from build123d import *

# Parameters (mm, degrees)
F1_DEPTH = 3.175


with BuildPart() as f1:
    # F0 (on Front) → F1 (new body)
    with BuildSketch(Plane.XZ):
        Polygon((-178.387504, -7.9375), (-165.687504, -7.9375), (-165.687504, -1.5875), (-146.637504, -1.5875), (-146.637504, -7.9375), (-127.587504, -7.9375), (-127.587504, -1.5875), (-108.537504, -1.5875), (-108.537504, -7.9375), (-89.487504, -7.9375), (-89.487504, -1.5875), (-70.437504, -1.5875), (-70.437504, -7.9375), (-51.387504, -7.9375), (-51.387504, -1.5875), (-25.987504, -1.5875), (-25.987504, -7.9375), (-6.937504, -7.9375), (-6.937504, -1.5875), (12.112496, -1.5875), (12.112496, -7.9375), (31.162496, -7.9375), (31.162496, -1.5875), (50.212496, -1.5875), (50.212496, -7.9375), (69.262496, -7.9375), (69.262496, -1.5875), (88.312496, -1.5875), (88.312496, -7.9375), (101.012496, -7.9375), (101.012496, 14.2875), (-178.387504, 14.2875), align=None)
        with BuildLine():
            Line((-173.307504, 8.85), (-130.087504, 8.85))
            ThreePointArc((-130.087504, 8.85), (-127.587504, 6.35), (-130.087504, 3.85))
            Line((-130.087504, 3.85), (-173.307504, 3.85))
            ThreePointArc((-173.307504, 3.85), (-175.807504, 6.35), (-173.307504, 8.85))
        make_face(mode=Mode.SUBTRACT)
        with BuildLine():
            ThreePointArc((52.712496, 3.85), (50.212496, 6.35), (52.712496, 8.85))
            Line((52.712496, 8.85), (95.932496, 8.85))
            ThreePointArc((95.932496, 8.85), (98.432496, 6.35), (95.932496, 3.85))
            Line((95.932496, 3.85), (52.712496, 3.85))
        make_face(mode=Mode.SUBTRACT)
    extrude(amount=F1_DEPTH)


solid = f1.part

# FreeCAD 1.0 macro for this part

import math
import FreeCAD as App
import Part
import Sketcher
from FreeCAD import Vector
Q = App.Units.Quantity


def add_polygon(sketch, points):
    """Adds a closed chain of lines whose ends are joined by coincident constraints."""
    first, n = sketch.GeometryCount, len(points)
    for a, b in zip(points, points[1:] + points[:1]):
        sketch.addGeometry(Part.LineSegment(App.Vector(*a, 0), App.Vector(*b, 0)), False)
    for i in range(n):
        sketch.addConstraint(Sketcher.Constraint("Coincident", first + i, 2, first + (i + 1) % n, 1))

doc = App.newDocument("Part")
body = doc.addObject("PartDesign::Body", "Body")

# Sketch on XZ plane
sketch1 = body.newObject("Sketcher::SketchObject", "Sketch")
sketch1.AttachmentSupport = (doc.getObject("XZ_Plane"), [""])
sketch1.MapMode = "FlatFace"
add_polygon(sketch1, [(-178.4, -7.9), (-165.7, -7.9), (-165.7, -1.6), (-146.6, -1.6), (-146.6, -7.9), (-127.6, -7.9), (-127.6, -1.6), (-108.5, -1.6), (-108.5, -7.9), (-89.5, -7.9), (-89.5, -1.6), (-70.4, -1.6), (-70.4, -7.9), (-51.4, -7.9), (-51.4, -1.6), (-26, -1.6), (-26, -7.9), (-6.9, -7.9), (-6.9, -1.6), (12.1, -1.6), (12.1, -7.9), (31.2, -7.9), (31.2, -1.6), (50.2, -1.6), (50.2, -7.9), (69.3, -7.9), (69.3, -1.6), (88.3, -1.6), (88.3, -7.9), (101, -7.9), (101, 14.3), (-178.4, 14.3)])  # lines 0-31
sketch1.addGeometry(Part.ArcOfCircle(Part.Circle(Vector(-173.3, 6.3, 0), Vector(0, 0, 1), 2.5), math.radians(90), math.radians(270)), False)  # 32
sketch1.addGeometry(Part.LineSegment(Vector(-173.3, 8.8, 0), Vector(-130.1, 8.8, 0)), False)  # 33
sketch1.addGeometry(Part.ArcOfCircle(Part.Circle(Vector(-130.1, 6.3, 0), Vector(0, 0, 1), 2.5), math.radians(-90), math.radians(90)), False)  # 34
sketch1.addGeometry(Part.LineSegment(Vector(-130.1, 3.9, 0), Vector(-173.3, 3.9, 0)), False)  # 35
sketch1.addGeometry(Part.LineSegment(Vector(95.9, 3.9, 0), Vector(52.7, 3.9, 0)), False)  # 36
sketch1.addGeometry(Part.ArcOfCircle(Part.Circle(Vector(52.7, 6.3, 0), Vector(0, 0, 1), 2.5), math.radians(90), math.radians(270)), False)  # 37
sketch1.addGeometry(Part.LineSegment(Vector(52.7, 8.8, 0), Vector(95.9, 8.8, 0)), False)  # 38
sketch1.addGeometry(Part.ArcOfCircle(Part.Circle(Vector(95.9, 6.3, 0), Vector(0, 0, 1), 2.5), math.radians(-90), math.radians(90)), False)  # 39
sketch1.addConstraint(Sketcher.Constraint("Tangent", 32, 1, 33, 1))
sketch1.addConstraint(Sketcher.Constraint("Tangent", 33, 2, 34, 2))
sketch1.addConstraint(Sketcher.Constraint("Tangent", 34, 1, 35, 1))
sketch1.addConstraint(Sketcher.Constraint("Tangent", 35, 2, 32, 2))
sketch1.addConstraint(Sketcher.Constraint("Tangent", 36, 2, 37, 2))
sketch1.addConstraint(Sketcher.Constraint("Tangent", 37, 1, 38, 1))
sketch1.addConstraint(Sketcher.Constraint("Tangent", 38, 2, 39, 2))
sketch1.addConstraint(Sketcher.Constraint("Tangent", 39, 1, 36, 1))
sketch1.addConstraint(Sketcher.Constraint("Horizontal", 0))
sketch1.addConstraint(Sketcher.Constraint("Vertical", 1))
sketch1.addConstraint(Sketcher.Constraint("Horizontal", 2))
sketch1.addConstraint(Sketcher.Constraint("Vertical", 3))
sketch1.addConstraint(Sketcher.Constraint("Horizontal", 4))
sketch1.addConstraint(Sketcher.Constraint("Vertical", 5))
sketch1.addConstraint(Sketcher.Constraint("Horizontal", 6))
sketch1.addConstraint(Sketcher.Constraint("Vertical", 7))
sketch1.addConstraint(Sketcher.Constraint("Horizontal", 8))
sketch1.addConstraint(Sketcher.Constraint("Vertical", 9))
sketch1.addConstraint(Sketcher.Constraint("Horizontal", 10))
sketch1.addConstraint(Sketcher.Constraint("Vertical", 11))
sketch1.addConstraint(Sketcher.Constraint("Horizontal", 12))
sketch1.addConstraint(Sketcher.Constraint("Vertical", 13))
sketch1.addConstraint(Sketcher.Constraint("Horizontal", 14))
sketch1.addConstraint(Sketcher.Constraint("Vertical", 15))
sketch1.addConstraint(Sketcher.Constraint("Horizontal", 16))
sketch1.addConstraint(Sketcher.Constraint("Vertical", 17))
sketch1.addConstraint(Sketcher.Constraint("Horizontal", 18))
sketch1.addConstraint(Sketcher.Constraint("Vertical", 19))
sketch1.addConstraint(Sketcher.Constraint("Horizontal", 20))
sketch1.addConstraint(Sketcher.Constraint("Vertical", 21))
sketch1.addConstraint(Sketcher.Constraint("Horizontal", 22))
sketch1.addConstraint(Sketcher.Constraint("Vertical", 23))
sketch1.addConstraint(Sketcher.Constraint("Horizontal", 24))
sketch1.addConstraint(Sketcher.Constraint("Vertical", 25))
sketch1.addConstraint(Sketcher.Constraint("Horizontal", 26))
sketch1.addConstraint(Sketcher.Constraint("Vertical", 27))
sketch1.addConstraint(Sketcher.Constraint("Horizontal", 28))
sketch1.addConstraint(Sketcher.Constraint("Vertical", 29))
sketch1.addConstraint(Sketcher.Constraint("Horizontal", 30))
sketch1.addConstraint(Sketcher.Constraint("Vertical", 31))
sketch1.addConstraint(Sketcher.Constraint("Horizontal", 33))
sketch1.addConstraint(Sketcher.Constraint("Horizontal", 35))
sketch1.addConstraint(Sketcher.Constraint("Horizontal", 36))
sketch1.addConstraint(Sketcher.Constraint("Horizontal", 38))
sketch1.addConstraint(Sketcher.Constraint("Equal", 34, 37))
sketch1.addConstraint(Sketcher.Constraint("Horizontal", 34, 3, 37, 3))
sketch1.addConstraint(Sketcher.Constraint("Horizontal", 0, 2, 3, 2))
sketch1.addConstraint(Sketcher.Constraint("Horizontal", 2, 2, 5, 2))
sketch1.addConstraint(Sketcher.Constraint("Horizontal", 4, 2, 7, 2))
sketch1.addConstraint(Sketcher.Constraint("Horizontal", 6, 2, 9, 2))
sketch1.addConstraint(Sketcher.Constraint("Horizontal", 8, 2, 11, 2))
sketch1.addConstraint(Sketcher.Constraint("Horizontal", 10, 2, 13, 2))
sketch1.addConstraint(Sketcher.Constraint("Horizontal", 12, 2, 15, 2))
sketch1.addConstraint(Sketcher.Constraint("Horizontal", 14, 2, 17, 2))
sketch1.addConstraint(Sketcher.Constraint("Horizontal", 16, 2, 19, 2))
sketch1.addConstraint(Sketcher.Constraint("Horizontal", 18, 2, 21, 2))
sketch1.addConstraint(Sketcher.Constraint("Horizontal", 20, 2, 23, 2))
sketch1.addConstraint(Sketcher.Constraint("Horizontal", 22, 2, 25, 2))
sketch1.addConstraint(Sketcher.Constraint("Horizontal", 24, 2, 27, 2))
sketch1.addConstraint(Sketcher.Constraint("Equal", 2, 4))
sketch1.addConstraint(Sketcher.Constraint("Equal", 4, 6))
sketch1.addConstraint(Sketcher.Constraint("Equal", 6, 8))
sketch1.addConstraint(Sketcher.Constraint("Equal", 8, 10))
sketch1.addConstraint(Sketcher.Constraint("Equal", 10, 12))
sketch1.addConstraint(Sketcher.Constraint("Equal", 12, 16))
sketch1.addConstraint(Sketcher.Constraint("Equal", 16, 18))
sketch1.addConstraint(Sketcher.Constraint("Equal", 18, 20))
sketch1.addConstraint(Sketcher.Constraint("Equal", 20, 22))
sketch1.addConstraint(Sketcher.Constraint("Equal", 22, 24))
sketch1.addConstraint(Sketcher.Constraint("Equal", 24, 26))
sketch1.addConstraint(Sketcher.Constraint("Equal", 0, 28))
sketch1.addConstraint(Sketcher.Constraint("Equal", 35, 36))
sketch1.addConstraint(Sketcher.Constraint("DistanceX", 14, 1, 14, 2, Q("1 in")))
sketch1.addConstraint(Sketcher.Constraint("DistanceX", 30, 2, 30, 1, Q("11 in")))
sketch1.addConstraint(Sketcher.Constraint("DistanceX", 0, 1, 0, 2, Q("0.5 in")))
sketch1.addConstraint(Sketcher.Constraint("DistanceY", 1, 1, 1, 2, Q("0.25 in")))
sketch1.addConstraint(Sketcher.Constraint("DistanceX", 32, 3, 39, 3, Q("10.6 in")))
sketch1.addConstraint(Sketcher.Constraint("DistanceX", 32, 3, 0, 2, Q("0.3 in")))
sketch1.addConstraint(Sketcher.Constraint("DistanceY", 29, 1, 29, 2, Q("0.875 in")))
sketch1.addConstraint(Sketcher.Constraint("DistanceY", -1, 1, 32, 3, Q("0.25 in")))
sketch1.addConstraint(Sketcher.Constraint("Radius", 32, 2.5))
sketch1.addConstraint(Sketcher.Constraint("DistanceY", 0, 2, -1, 1, Q("0.3125 in")))
sketch1.addConstraint(Sketcher.Constraint("DistanceX", 33, 1, 33, 2, 43.22))
sketch1.addConstraint(Sketcher.Constraint("DistanceX", 32, 3, -1, 1, 173.307504))
pad1 = body.newObject("PartDesign::Pad", "Pad")
pad1.Profile = sketch1
pad1.Length = Q("0.125 in")

doc.recompute()
